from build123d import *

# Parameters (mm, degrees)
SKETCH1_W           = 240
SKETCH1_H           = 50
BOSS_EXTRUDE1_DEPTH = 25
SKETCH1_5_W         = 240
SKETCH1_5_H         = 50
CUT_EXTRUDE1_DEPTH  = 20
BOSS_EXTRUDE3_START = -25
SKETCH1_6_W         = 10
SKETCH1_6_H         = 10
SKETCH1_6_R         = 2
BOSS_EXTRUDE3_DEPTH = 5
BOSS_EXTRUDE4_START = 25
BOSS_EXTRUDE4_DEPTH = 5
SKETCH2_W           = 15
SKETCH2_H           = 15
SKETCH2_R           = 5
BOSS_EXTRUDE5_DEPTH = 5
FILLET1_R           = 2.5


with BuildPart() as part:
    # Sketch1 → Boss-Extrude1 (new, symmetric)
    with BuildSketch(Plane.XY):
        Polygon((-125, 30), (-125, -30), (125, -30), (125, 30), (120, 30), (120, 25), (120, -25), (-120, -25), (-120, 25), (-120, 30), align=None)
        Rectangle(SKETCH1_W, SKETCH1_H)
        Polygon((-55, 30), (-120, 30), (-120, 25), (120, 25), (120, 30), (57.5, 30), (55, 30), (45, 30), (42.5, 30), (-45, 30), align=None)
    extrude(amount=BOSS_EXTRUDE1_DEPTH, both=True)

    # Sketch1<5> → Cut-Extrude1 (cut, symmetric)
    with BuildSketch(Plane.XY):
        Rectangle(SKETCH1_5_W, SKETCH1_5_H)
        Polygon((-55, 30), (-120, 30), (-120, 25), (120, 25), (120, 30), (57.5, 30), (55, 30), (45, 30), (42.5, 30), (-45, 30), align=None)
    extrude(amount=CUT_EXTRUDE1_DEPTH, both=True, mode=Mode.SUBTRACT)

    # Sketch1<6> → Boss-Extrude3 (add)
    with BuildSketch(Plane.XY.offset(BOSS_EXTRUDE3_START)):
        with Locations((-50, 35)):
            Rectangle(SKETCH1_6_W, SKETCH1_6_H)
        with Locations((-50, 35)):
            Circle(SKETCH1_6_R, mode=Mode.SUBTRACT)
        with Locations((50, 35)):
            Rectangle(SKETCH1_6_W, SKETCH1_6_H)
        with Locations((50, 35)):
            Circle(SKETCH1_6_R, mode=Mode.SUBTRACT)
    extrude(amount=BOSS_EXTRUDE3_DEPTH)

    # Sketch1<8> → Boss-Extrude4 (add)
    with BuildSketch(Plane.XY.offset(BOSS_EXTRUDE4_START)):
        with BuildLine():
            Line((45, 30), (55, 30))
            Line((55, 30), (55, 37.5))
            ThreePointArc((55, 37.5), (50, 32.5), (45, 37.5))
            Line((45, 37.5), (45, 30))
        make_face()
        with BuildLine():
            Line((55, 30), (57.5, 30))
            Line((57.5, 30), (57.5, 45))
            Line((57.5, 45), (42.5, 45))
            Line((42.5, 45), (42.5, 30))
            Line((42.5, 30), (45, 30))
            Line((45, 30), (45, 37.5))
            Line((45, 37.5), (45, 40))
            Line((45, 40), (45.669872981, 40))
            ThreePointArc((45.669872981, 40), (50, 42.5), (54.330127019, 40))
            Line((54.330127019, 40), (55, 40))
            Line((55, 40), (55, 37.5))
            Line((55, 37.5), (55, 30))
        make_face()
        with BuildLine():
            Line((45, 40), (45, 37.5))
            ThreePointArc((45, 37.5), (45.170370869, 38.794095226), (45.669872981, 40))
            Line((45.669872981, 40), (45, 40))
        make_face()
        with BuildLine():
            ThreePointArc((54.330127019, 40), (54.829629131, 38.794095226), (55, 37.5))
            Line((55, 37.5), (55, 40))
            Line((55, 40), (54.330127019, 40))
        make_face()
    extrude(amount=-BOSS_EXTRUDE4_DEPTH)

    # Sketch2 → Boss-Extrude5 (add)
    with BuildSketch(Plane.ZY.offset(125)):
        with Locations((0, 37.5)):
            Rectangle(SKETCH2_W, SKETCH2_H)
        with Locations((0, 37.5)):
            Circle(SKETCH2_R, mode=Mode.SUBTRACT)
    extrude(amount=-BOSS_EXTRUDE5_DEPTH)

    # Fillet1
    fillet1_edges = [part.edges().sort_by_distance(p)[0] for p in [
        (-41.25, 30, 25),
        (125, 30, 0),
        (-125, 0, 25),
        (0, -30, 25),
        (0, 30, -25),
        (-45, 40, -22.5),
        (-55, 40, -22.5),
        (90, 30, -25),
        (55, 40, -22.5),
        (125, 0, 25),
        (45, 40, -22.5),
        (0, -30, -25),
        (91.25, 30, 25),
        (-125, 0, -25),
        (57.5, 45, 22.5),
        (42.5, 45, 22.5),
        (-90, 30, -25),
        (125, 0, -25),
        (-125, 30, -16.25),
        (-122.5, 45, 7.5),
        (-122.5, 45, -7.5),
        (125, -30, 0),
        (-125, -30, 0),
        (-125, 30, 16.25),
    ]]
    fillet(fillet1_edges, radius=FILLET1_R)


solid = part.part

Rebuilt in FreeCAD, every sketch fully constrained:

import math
import FreeCAD as App
import Part
import Sketcher


def edges_at(feature, points):
    """Names of the edges that pass closest to the given points."""
    edges = feature.Shape.Edges
    near = lambda p: min(range(len(edges)), key=lambda i: edges[i].distToShape(Part.Vertex(*p))[0])
    return sorted({f"Edge{near(p) + 1}" for p in points})

doc = App.newDocument("Part")
params = doc.addObject("Spreadsheet::Sheet", "Params")
for row, (alias, value) in enumerate([
    ("sketch1_width", "250 mm"),
    ("sketch1_height", "60 mm"),
    ("pad1_length", "50 mm"),
    ("sketch2_width", "240 mm"),
    ("sketch2_height", "55 mm"),
    ("pocket1_length", "40 mm"),
    ("sketch3_diameter", "4 mm"),
    ("sketch3_width", "10 mm"),
    ("pad2_length", "5 mm"),
    ("sketch4_radius", "5 mm"),
    ("sketch4_width", "15 mm"),
    ("pad3_length", "5 mm"),
    ("sketch5_diameter", "10 mm"),
    ("sketch5_width", "15 mm"),
    ("pad4_length", "5 mm"),
    ("fillet_radius", "2.5 mm"),
], start=1):
    params.set(f"A{row}", alias)
    params.set(f"B{row}", "=" + value)
    params.setAlias(f"B{row}", alias)

body = doc.addObject("PartDesign::Body", "Body")

# Sketch on XY plane
sketch1 = body.newObject("Sketcher::SketchObject", "Sketch")
sketch1.AttachmentSupport = (doc.getObject("XY_Plane"), [""])
sketch1.MapMode = "FlatFace"
sketch1.addGeometry([
    Part.LineSegment(App.Vector(-125, 30, 0), App.Vector(-125, -30, 0)),
    Part.LineSegment(App.Vector(-125, -30, 0), App.Vector(125, -30, 0)),
    Part.LineSegment(App.Vector(125, -30, 0), App.Vector(125, 30, 0)),
    Part.LineSegment(App.Vector(125, 30, 0), App.Vector(-125, 30, 0)),
], False)
sketch1.addConstraint([
    Sketcher.Constraint("Coincident", 0, 2, 1, 1),
    Sketcher.Constraint("Coincident", 1, 2, 2, 1),
    Sketcher.Constraint("Coincident", 2, 2, 3, 1),
    Sketcher.Constraint("Coincident", 3, 2, 0, 1),
    Sketcher.Constraint("Vertical", 0),
    Sketcher.Constraint("Horizontal", 1),
    Sketcher.Constraint("Vertical", 2),
    Sketcher.Constraint("Horizontal", 3),
    Sketcher.Constraint("Symmetric", 0, 2, 2, 2, -1, 1),
    Sketcher.Constraint("DistanceX", 1, 1, 1, 2, 250.0),
    Sketcher.Constraint("DistanceY", 0, 2, 0, 1, 60.0),
])
sketch1.setExpression("Constraints[9]", "Params.sketch1_width")
sketch1.setExpression("Constraints[10]", "Params.sketch1_height")
pad1 = body.newObject("PartDesign::Pad", "Pad")
pad1.Profile = sketch1
pad1.setExpression("Length", "Params.pad1_length")
pad1.Midplane = True

# Sketch on XY plane
sketch2 = body.newObject("Sketcher::SketchObject", "Sketch001")
sketch2.AttachmentSupport = (doc.getObject("XY_Plane"), [""])
sketch2.MapMode = "FlatFace"
sketch2.addGeometry([
    Part.LineSegment(App.Vector(-120, -25, 0), App.Vector(120, -25, 0)),
    Part.LineSegment(App.Vector(120, -25, 0), App.Vector(120, 30, 0)),
    Part.LineSegment(App.Vector(120, 30, 0), App.Vector(-120, 30, 0)),
    Part.LineSegment(App.Vector(-120, 30, 0), App.Vector(-120, -25, 0)),
], False)
sketch2.addConstraint([
    Sketcher.Constraint("Coincident", 0, 2, 1, 1),
    Sketcher.Constraint("Coincident", 1, 2, 2, 1),
    Sketcher.Constraint("Coincident", 2, 2, 3, 1),
    Sketcher.Constraint("Coincident", 3, 2, 0, 1),
    Sketcher.Constraint("Horizontal", 0),
    Sketcher.Constraint("Vertical", 1),
    Sketcher.Constraint("Horizontal", 2),
    Sketcher.Constraint("Vertical", 3),
    Sketcher.Constraint("DistanceX", 0, 1, 0, 2, 240.0),
    Sketcher.Constraint("DistanceY", 1, 1, 1, 2, 55.0),
    Sketcher.Constraint("DistanceX", -1, 1, 0, 2, 120.0),
    Sketcher.Constraint("DistanceY", 0, 2, -1, 1, 25.0),
])
sketch2.setExpression("Constraints[8]", "Params.sketch2_width")
sketch2.setExpression("Constraints[9]", "Params.sketch2_height")
pocket1 = body.newObject("PartDesign::Pocket", "Pocket")
pocket1.Profile = sketch2
pocket1.setExpression("Length", "Params.pocket1_length")
pocket1.Midplane = True

# Sketch on XY plane
sketch3 = body.newObject("Sketcher::SketchObject", "Sketch002")
sketch3.AttachmentSupport = (doc.getObject("XY_Plane"), [""])
sketch3.MapMode = "FlatFace"
sketch3.AttachmentOffset = App.Placement(App.Vector(0, 0, -25), App.Rotation())
sketch3.addGeometry([
    Part.LineSegment(App.Vector(-55, 40, 0), App.Vector(-55, 30, 0)),  # 0
    Part.LineSegment(App.Vector(-55, 30, 0), App.Vector(-45, 30, 0)),  # 1
    Part.LineSegment(App.Vector(-45, 30, 0), App.Vector(-45, 40, 0)),  # 2
    Part.LineSegment(App.Vector(-45, 40, 0), App.Vector(-55, 40, 0)),  # 3
    Part.Circle(App.Vector(-50, 35, 0), App.Vector(0, 0, 1), 2),  # 4
    Part.LineSegment(App.Vector(45, 40, 0), App.Vector(45, 30, 0)),  # 5
    Part.LineSegment(App.Vector(45, 30, 0), App.Vector(55, 30, 0)),  # 6
    Part.LineSegment(App.Vector(55, 30, 0), App.Vector(55, 40, 0)),  # 7
    Part.LineSegment(App.Vector(55, 40, 0), App.Vector(45, 40, 0)),  # 8
    Part.Circle(App.Vector(50, 35, 0), App.Vector(0, 0, 1), 2),  # 9
], False)
sketch3.addConstraint([
    Sketcher.Constraint("Coincident", 0, 2, 1, 1),
    Sketcher.Constraint("Coincident", 1, 2, 2, 1),
    Sketcher.Constraint("Coincident", 2, 2, 3, 1),
    Sketcher.Constraint("Coincident", 3, 2, 0, 1),
    Sketcher.Constraint("Coincident", 5, 2, 6, 1),
    Sketcher.Constraint("Coincident", 6, 2, 7, 1),
    Sketcher.Constraint("Coincident", 7, 2, 8, 1),
    Sketcher.Constraint("Coincident", 8, 2, 5, 1),
    Sketcher.Constraint("Vertical", 0),
    Sketcher.Constraint("Horizontal", 1),
    Sketcher.Constraint("Vertical", 2),
    Sketcher.Constraint("Horizontal", 3),
    Sketcher.Constraint("Vertical", 5),
    Sketcher.Constraint("Horizontal", 6),
    Sketcher.Constraint("Vertical", 7),
    Sketcher.Constraint("Horizontal", 8),
    Sketcher.Constraint("Equal", 4, 9),
    Sketcher.Constraint("Symmetric", 4, 3, 9, 3, -2),
    Sketcher.Constraint("Symmetric", 1, 2, 5, 2, -2),
    Sketcher.Constraint("Symmetric", 3, 2, 7, 2, -2),
    Sketcher.Constraint("Equal", 8, 0),
    Sketcher.Constraint("Diameter", 4, 4.0),
    Sketcher.Constraint("DistanceX", 1, 1, 1, 2, 10.0),
    Sketcher.Constraint("DistanceX", 4, 3, -1, 1, 50.0),
    Sketcher.Constraint("DistanceY", -1, 1, 4, 3, 35.0),
    Sketcher.Constraint("DistanceX", 0, 2, -1, 1, 55.0),
    Sketcher.Constraint("DistanceY", -1, 1, 0, 2, 30.0),
])
sketch3.setExpression("Constraints[21]", "Params.sketch3_diameter")
sketch3.setExpression("Constraints[22]", "Params.sketch3_width")
pad2 = body.newObject("PartDesign::Pad", "Pad001")
pad2.Profile = sketch3
pad2.setExpression("Length", "Params.pad2_length")

# Sketch on XY plane
sketch4 = body.newObject("Sketcher::SketchObject", "Sketch003")
sketch4.AttachmentSupport = (doc.getObject("XY_Plane"), [""])
sketch4.MapMode = "FlatFace"
sketch4.AttachmentOffset = App.Placement(App.Vector(0, 0, 25), App.Rotation())
sketch4.addGeometry([
    Part.LineSegment(App.Vector(57.5, 30, 0), App.Vector(57.5, 45, 0)),  # 0
    Part.LineSegment(App.Vector(57.5, 45, 0), App.Vector(42.5, 45, 0)),  # 1
    Part.LineSegment(App.Vector(42.5, 45, 0), App.Vector(42.5, 30, 0)),  # 2
    Part.LineSegment(App.Vector(42.5, 30, 0), App.Vector(57.5, 30, 0)),  # 3
    Part.ArcOfCircle(Part.Circle(App.Vector(50, 37.5, 0), App.Vector(0, 0, 1), 5), math.radians(180), math.radians(360)),  # 4
    Part.ArcOfCircle(Part.Circle(App.Vector(50, 37.5, 0), App.Vector(0, 0, 1), 5), math.radians(150), math.radians(180)),  # 5
    Part.ArcOfCircle(Part.Circle(App.Vector(50, 37.5, 0), App.Vector(0, 0, 1), 5), math.radians(30), math.radians(150)),  # 6
    Part.ArcOfCircle(Part.Circle(App.Vector(50, 37.5, 0), App.Vector(0, 0, 1), 5), math.radians(0), math.radians(30)),  # 7
], False)
sketch4.addConstraint([
    Sketcher.Constraint("Coincident", 0, 2, 1, 1),
    Sketcher.Constraint("Coincident", 1, 2, 2, 1),
    Sketcher.Constraint("Coincident", 2, 2, 3, 1),
    Sketcher.Constraint("Coincident", 3, 2, 0, 1),
    Sketcher.Constraint("Tangent", 4, 1, 5, 2),
    Sketcher.Constraint("Tangent", 5, 1, 6, 2),
    Sketcher.Constraint("Tangent", 6, 1, 7, 2),
    Sketcher.Constraint("Tangent", 7, 1, 4, 2),
    Sketcher.Constraint("Vertical", 0),
    Sketcher.Constraint("Horizontal", 1),
    Sketcher.Constraint("Vertical", 2),
    Sketcher.Constraint("Horizontal", 3),
    Sketcher.Constraint("Equal", 4, 5),
    Sketcher.Constraint("Horizontal", 7, 3, 4, 1),
    Sketcher.Constraint("Horizontal", 5, 1, 6, 1),
    Sketcher.Constraint("Horizontal", 4, 1, 7, 1),
    Sketcher.Constraint("Equal", 3, 0),
    Sketcher.Constraint("Radius", 4, 5.0),
    Sketcher.Constraint("DistanceX", 1, 2, 1, 1, 15.0),
    Sketcher.Constraint("DistanceX", -1, 1, 4, 3, 50.0),
    Sketcher.Constraint("DistanceY", -1, 1, 0, 2, 45.0),
    Sketcher.Constraint("DistanceY", -1, 1, 5, 1, 40.0),
    Sketcher.Constraint("DistanceY", -1, 1, 4, 3, 37.5),
    Sketcher.Constraint("DistanceX", -1, 1, 0, 2, 57.5),
])
sketch4.setExpression("Constraints[17]", "Params.sketch4_radius")
sketch4.setExpression("Constraints[18]", "Params.sketch4_width")
pad3 = body.newObject("PartDesign::Pad", "Pad002")
pad3.Profile = sketch4
pad3.setExpression("Length", "Params.pad3_length")
pad3.Reversed = True

# Sketch on YZ plane
sketch5 = body.newObject("Sketcher::SketchObject", "Sketch004")
sketch5.AttachmentSupport = (doc.getObject("YZ_Plane"), [""])
sketch5.MapMode = "FlatFace"
sketch5.AttachmentOffset = App.Placement(App.Vector(0, 0, -125), App.Rotation())
sketch5.addGeometry([
    Part.LineSegment(App.Vector(45, -7.5, 0), App.Vector(30, -7.5, 0)),  # 0
    Part.LineSegment(App.Vector(30, -7.5, 0), App.Vector(30, 7.5, 0)),  # 1
    Part.LineSegment(App.Vector(30, 7.5, 0), App.Vector(45, 7.5, 0)),  # 2
    Part.LineSegment(App.Vector(45, 7.5, 0), App.Vector(45, -7.5, 0)),  # 3
    Part.Circle(App.Vector(37.5, 0, 0), App.Vector(0, 0, 1), 5),  # 4
], False)
sketch5.addConstraint([
    Sketcher.Constraint("Coincident", 0, 2, 1, 1),
    Sketcher.Constraint("Coincident", 1, 2, 2, 1),
    Sketcher.Constraint("Coincident", 2, 2, 3, 1),
    Sketcher.Constraint("Coincident", 3, 2, 0, 1),
    Sketcher.Constraint("Horizontal", 0),
    Sketcher.Constraint("Vertical", 1),
    Sketcher.Constraint("Horizontal", 2),
    Sketcher.Constraint("Vertical", 3),
    Sketcher.Constraint("PointOnObject", 4, 3, -1),
    Sketcher.Constraint("Equal", 2, 1),
    Sketcher.Constraint("Diameter", 4, 10.0),
    Sketcher.Constraint("DistanceX", 0, 2, 0, 1, 15.0),
    Sketcher.Constraint("DistanceX", -1, 1, 0, 2, 30.0),
    Sketcher.Constraint("DistanceX", -1, 1, 4, 3, 37.5),
    Sketcher.Constraint("DistanceY", 0, 2, -1, 1, 7.5),
])
sketch5.setExpression("Constraints[10]", "Params.sketch5_diameter")
sketch5.setExpression("Constraints[11]", "Params.sketch5_width")
pad4 = body.newObject("PartDesign::Pad", "Pad003")
pad4.Profile = sketch5
pad4.setExpression("Length", "Params.pad4_length")
doc.recompute()

fillet = body.newObject("PartDesign::Fillet", "Fillet")
fillet.Base = (pad4, edges_at(pad4, [
    (-41.25, 30, 25),
    (125, 30, 0),
    (-125, 0, 25),
    (0, -30, 25),
    (0, 30, -25),
    (-45, 40, -22.5),
    (-55, 40, -22.5),
    (90, 30, -25),
    (55, 40, -22.5),
    (125, 0, 25),
    (45, 40, -22.5),
    (0, -30, -25),
    (91.25, 30, 25),
    (-125, 0, -25),
    (57.5, 45, 22.5),
    (42.5, 45, 22.5),
    (-90, 30, -25),
    (125, 0, -25),
    (-125, 30, -16.25),
    (-122.5, 45, 7.5),
    (-122.5, 45, -7.5),
    (125, -30, 0),
    (-125, -30, 0),
    (-125, 30, 16.25),
]))
fillet.setExpression("Radius", "Params.fillet_radius")

doc.recompute()
